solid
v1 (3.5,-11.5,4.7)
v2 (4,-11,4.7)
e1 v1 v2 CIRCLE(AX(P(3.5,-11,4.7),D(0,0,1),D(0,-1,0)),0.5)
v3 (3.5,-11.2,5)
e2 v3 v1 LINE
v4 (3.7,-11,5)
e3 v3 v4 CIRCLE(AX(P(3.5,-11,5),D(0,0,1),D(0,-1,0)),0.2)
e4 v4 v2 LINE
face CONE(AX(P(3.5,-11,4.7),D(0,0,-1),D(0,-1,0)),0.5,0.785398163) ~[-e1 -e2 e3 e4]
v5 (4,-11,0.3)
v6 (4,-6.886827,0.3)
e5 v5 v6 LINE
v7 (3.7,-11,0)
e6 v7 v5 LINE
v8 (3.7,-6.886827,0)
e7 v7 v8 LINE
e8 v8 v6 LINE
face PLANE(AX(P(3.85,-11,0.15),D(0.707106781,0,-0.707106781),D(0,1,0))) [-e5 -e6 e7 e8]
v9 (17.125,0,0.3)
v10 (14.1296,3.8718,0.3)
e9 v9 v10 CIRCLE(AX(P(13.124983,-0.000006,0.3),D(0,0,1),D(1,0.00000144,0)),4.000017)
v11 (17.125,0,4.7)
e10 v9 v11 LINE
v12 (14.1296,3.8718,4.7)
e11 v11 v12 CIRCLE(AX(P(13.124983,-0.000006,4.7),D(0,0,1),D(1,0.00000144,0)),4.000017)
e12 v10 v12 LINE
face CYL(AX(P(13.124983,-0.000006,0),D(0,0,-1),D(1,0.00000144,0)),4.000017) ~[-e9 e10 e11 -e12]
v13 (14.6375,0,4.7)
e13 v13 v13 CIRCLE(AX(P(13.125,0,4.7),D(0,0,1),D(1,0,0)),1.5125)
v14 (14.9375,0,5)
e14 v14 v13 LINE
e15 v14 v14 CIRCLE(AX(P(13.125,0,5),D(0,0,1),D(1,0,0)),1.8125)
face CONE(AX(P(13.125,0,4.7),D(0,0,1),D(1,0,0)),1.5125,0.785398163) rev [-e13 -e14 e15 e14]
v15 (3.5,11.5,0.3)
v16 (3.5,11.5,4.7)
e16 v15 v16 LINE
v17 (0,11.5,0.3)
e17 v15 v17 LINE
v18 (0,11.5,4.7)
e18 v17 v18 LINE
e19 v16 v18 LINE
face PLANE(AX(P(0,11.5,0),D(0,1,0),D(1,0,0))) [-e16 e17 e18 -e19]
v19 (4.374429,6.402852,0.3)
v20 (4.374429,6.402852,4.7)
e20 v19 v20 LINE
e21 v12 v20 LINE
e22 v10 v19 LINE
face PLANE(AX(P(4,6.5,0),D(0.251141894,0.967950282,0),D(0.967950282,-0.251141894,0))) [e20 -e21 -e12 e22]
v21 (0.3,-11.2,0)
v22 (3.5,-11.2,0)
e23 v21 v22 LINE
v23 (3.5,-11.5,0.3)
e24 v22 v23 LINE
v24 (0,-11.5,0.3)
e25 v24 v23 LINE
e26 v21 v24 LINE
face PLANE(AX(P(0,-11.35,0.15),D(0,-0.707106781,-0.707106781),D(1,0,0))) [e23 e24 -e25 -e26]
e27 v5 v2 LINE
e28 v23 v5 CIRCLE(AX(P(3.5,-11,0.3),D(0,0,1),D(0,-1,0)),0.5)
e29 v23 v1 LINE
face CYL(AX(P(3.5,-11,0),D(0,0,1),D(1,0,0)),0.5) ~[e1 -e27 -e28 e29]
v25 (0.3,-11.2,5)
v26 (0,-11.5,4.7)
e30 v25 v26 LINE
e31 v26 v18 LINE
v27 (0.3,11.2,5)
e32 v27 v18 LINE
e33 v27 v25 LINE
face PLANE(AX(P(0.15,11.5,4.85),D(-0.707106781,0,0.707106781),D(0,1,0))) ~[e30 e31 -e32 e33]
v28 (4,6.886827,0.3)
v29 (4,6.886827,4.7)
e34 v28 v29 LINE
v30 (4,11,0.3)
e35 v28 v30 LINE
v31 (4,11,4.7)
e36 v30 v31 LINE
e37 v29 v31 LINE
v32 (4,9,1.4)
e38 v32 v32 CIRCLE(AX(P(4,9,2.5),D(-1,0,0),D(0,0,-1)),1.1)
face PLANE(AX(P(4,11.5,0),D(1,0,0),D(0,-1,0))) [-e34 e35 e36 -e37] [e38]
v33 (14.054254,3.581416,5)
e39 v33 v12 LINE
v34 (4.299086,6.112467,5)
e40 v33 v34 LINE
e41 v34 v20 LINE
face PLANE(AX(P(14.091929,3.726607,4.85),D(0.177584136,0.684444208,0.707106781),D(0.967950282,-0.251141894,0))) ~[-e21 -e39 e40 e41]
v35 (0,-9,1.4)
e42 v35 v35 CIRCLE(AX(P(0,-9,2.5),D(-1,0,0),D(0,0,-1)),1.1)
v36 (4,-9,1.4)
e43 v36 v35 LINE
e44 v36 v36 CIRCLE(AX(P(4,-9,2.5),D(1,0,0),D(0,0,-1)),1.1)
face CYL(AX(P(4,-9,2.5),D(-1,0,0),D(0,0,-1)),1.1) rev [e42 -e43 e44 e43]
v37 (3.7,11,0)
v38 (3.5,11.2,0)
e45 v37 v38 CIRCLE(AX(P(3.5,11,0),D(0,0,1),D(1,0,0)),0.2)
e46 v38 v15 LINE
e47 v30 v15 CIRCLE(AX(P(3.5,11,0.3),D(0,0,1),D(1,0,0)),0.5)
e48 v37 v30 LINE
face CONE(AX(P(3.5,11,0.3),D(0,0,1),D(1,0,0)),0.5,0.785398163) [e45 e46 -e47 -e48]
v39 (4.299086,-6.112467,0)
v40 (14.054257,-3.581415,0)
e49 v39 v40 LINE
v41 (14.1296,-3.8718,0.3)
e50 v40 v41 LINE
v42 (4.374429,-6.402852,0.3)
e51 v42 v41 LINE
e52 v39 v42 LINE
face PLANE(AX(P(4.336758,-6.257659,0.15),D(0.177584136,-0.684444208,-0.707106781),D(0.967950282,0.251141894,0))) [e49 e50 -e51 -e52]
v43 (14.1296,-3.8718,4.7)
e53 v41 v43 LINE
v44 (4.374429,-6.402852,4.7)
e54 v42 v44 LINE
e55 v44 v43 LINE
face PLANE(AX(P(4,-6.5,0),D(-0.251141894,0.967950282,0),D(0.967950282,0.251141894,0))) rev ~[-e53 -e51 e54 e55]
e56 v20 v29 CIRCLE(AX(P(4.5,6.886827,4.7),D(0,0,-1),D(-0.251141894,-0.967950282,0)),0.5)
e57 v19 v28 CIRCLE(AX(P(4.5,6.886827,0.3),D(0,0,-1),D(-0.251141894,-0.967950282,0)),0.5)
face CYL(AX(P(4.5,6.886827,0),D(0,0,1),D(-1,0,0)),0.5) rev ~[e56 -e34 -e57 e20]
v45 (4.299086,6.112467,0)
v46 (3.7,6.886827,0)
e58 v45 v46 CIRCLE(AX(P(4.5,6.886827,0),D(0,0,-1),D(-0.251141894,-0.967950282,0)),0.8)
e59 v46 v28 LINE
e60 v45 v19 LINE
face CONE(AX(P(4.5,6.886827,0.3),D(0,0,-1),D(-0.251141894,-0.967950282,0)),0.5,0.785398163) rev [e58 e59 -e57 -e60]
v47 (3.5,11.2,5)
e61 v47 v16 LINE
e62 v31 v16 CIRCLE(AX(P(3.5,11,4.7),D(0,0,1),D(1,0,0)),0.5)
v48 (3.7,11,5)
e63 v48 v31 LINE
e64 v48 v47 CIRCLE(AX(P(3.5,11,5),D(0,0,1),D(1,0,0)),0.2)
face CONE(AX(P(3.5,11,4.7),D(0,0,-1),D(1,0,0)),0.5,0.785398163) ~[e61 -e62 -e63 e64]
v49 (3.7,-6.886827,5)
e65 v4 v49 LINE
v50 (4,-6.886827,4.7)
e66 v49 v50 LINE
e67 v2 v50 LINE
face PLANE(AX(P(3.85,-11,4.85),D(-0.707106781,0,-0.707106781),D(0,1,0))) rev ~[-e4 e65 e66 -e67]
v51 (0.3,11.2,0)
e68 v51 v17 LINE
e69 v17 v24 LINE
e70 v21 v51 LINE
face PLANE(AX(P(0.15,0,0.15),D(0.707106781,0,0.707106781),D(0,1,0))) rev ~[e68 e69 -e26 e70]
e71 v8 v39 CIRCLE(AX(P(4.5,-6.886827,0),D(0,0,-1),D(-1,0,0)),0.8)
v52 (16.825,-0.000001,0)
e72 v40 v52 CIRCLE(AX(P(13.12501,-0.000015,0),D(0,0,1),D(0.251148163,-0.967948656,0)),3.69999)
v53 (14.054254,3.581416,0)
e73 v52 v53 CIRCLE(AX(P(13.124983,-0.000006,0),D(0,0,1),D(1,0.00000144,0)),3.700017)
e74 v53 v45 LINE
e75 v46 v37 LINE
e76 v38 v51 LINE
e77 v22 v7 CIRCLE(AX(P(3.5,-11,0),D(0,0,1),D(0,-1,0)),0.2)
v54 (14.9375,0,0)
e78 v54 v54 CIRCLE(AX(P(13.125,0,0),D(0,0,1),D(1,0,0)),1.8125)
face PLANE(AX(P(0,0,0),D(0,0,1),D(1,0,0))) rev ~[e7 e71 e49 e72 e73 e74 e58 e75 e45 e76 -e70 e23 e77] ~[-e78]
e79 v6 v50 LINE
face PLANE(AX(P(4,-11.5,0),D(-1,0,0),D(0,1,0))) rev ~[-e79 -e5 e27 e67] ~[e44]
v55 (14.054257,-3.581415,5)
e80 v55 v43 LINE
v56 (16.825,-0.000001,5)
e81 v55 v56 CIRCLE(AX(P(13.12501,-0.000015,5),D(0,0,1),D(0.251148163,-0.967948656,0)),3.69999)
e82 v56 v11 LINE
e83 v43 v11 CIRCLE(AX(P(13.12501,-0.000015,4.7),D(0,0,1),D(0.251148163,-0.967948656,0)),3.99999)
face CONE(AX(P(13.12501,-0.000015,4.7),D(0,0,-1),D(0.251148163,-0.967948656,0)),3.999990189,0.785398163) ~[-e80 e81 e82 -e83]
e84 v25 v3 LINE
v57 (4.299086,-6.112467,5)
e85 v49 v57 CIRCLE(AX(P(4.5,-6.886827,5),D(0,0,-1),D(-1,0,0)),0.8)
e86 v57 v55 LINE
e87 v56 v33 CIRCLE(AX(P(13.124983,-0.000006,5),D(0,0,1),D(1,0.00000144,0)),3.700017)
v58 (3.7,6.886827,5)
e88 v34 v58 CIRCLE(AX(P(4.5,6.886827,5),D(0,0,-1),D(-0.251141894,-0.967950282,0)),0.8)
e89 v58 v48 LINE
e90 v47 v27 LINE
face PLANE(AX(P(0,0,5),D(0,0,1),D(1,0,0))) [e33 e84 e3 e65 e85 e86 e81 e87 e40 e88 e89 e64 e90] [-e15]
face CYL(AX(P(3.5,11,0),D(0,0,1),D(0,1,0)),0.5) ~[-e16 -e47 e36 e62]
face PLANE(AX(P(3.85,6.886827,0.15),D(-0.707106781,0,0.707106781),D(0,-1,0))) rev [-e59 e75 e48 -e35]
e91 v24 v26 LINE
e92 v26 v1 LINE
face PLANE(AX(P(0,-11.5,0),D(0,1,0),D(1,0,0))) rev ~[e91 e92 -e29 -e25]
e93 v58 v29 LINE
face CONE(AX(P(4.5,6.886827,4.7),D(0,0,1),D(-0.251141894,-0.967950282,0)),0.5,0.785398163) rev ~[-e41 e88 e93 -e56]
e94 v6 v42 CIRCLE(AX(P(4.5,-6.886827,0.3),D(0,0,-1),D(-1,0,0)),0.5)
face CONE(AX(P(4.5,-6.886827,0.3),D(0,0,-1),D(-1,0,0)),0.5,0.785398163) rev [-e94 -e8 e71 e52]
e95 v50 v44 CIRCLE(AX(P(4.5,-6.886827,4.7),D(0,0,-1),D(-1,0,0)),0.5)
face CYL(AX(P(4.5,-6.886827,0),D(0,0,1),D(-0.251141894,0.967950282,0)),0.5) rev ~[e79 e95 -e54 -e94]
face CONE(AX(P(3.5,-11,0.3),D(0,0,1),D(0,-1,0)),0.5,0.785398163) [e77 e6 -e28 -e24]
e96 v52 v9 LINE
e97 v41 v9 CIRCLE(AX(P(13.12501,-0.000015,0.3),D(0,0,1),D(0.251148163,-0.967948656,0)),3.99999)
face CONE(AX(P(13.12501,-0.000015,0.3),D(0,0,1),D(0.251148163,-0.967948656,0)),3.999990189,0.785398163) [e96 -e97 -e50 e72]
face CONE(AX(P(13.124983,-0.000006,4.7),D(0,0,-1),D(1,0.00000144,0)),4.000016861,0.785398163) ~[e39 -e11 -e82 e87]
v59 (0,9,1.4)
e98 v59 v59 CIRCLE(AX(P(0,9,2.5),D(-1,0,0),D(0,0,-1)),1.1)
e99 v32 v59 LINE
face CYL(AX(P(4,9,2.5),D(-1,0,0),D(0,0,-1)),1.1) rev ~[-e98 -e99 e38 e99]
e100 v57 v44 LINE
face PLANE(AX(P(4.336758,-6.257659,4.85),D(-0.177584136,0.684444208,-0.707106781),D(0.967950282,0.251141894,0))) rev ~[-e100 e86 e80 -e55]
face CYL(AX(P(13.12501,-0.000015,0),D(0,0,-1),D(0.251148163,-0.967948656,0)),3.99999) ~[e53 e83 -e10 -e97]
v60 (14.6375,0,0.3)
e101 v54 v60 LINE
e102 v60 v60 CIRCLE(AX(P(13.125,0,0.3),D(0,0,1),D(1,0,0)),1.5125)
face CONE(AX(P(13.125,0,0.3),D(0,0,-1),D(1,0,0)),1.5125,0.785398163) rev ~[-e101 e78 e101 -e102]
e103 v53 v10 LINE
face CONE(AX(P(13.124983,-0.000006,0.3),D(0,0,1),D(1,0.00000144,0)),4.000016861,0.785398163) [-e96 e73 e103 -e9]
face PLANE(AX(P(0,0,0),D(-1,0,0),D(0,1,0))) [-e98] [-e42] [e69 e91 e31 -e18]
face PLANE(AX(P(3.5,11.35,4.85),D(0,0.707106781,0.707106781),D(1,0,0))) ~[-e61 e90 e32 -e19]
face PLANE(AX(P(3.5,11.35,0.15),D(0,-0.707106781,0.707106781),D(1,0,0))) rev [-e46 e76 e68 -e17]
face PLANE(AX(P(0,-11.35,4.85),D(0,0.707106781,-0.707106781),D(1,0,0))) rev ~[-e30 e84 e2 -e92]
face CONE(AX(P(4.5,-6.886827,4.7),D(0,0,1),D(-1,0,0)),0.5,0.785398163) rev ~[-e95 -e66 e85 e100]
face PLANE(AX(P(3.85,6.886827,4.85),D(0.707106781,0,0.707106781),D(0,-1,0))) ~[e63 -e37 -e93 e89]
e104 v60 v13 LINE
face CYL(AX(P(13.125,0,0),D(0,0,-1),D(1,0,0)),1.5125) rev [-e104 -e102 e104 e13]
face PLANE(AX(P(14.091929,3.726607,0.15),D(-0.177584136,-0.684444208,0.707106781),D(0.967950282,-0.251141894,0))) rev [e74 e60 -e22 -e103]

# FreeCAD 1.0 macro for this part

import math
import FreeCAD as App
import Part
import Sketcher
from FreeCAD import Vector
Q = App.Units.Quantity


def edges_at(feature, points):
    """Names of the edges that pass closest to the given points."""
    edges = feature.Shape.Edges
    near = lambda p: min(range(len(edges)), key=lambda i: edges[i].distToShape(Part.Vertex(*p))[0])
    return sorted({f"Edge{near(p) + 1}" for p in points})

doc = App.newDocument("Part")
body = doc.addObject("PartDesign::Body", "Body")

# Sketch on XY plane
sketch1 = doc.addObject("Sketcher::SketchObject", "Sketch")
body.addObject(sketch1)
sketch1.AttachmentSupport = (doc.XY_Plane, [""])
sketch1.MapMode = "FlatFace"
sketch1.addGeometry(Part.LineSegment(Vector(0, 11.5, 0), Vector(0, -11.5, 0)), False)
sketch1.addGeometry(Part.LineSegment(Vector(0, -11.5, 0), Vector(4, -11.5, 0)), False)
sketch1.addGeometry(Part.LineSegment(Vector(4, -11.5, 0), Vector(4, -6.5, 0)), False)
sketch1.addGeometry(Part.LineSegment(Vector(4, -6.5, 0), Vector(14.1296, -3.8718, 0)), False)
sketch1.addGeometry(Part.ArcOfCircle(Part.Circle(Vector(13.125, 0, 0), Vector(0, 0, 1), 4), math.radians(-75.454453), math.radians(0)), False)
sketch1.addGeometry(Part.ArcOfCircle(Part.Circle(Vector(13.125, 0, 0), Vector(0, 0, 1), 4.000007), math.radians(0), math.radians(75.454453)), False)
sketch1.addGeometry(Part.LineSegment(Vector(14.1296, 3.8718, 0), Vector(4, 6.5, 0)), False)
sketch1.addGeometry(Part.LineSegment(Vector(4, 6.5, 0), Vector(4, 11.5, 0)), False)
sketch1.addGeometry(Part.LineSegment(Vector(4, 11.5, 0), Vector(0, 11.5, 0)), False)
sketch1.addGeometry(Part.Circle(Vector(13.125, 0, 0), Vector(0, 0, 1), 1.5125), False)
sketch1.addConstraint(Sketcher.Constraint("Coincident", 0, 2, 1, 1))
sketch1.addConstraint(Sketcher.Constraint("Coincident", 1, 2, 2, 1))
sketch1.addConstraint(Sketcher.Constraint("Coincident", 2, 2, 3, 1))
sketch1.addConstraint(Sketcher.Constraint("Tangent", 3, 2, 4, 1))
sketch1.addConstraint(Sketcher.Constraint("Tangent", 4, 2, 5, 1))
sketch1.addConstraint(Sketcher.Constraint("Tangent", 5, 2, 6, 1))
sketch1.addConstraint(Sketcher.Constraint("Coincident", 6, 2, 7, 1))
sketch1.addConstraint(Sketcher.Constraint("Coincident", 7, 2, 8, 1))
sketch1.addConstraint(Sketcher.Constraint("Coincident", 8, 2, 0, 1))
sketch1.addConstraint(Sketcher.Constraint("Vertical", 0))
sketch1.addConstraint(Sketcher.Constraint("Horizontal", 1))
sketch1.addConstraint(Sketcher.Constraint("Vertical", 2))
sketch1.addConstraint(Sketcher.Constraint("Vertical", 7))
sketch1.addConstraint(Sketcher.Constraint("Horizontal", 8))
sketch1.addConstraint(Sketcher.Constraint("Coincident", 9, 3, 4, 3))
sketch1.addConstraint(Sketcher.Constraint("Equal", 4, 5))
sketch1.addConstraint(Sketcher.Constraint("Symmetric", 0, 2, 8, 2, -1, 1))
sketch1.addConstraint(Sketcher.Constraint("Symmetric", 3, 2, 5, 2, -1))
sketch1.addConstraint(Sketcher.Constraint("PointOnObject", 4, 2, -1))
sketch1.addConstraint(Sketcher.Constraint("Vertical", 2, 2, 6, 2))
sketch1.addConstraint(Sketcher.Constraint("Radius", 4, Q("4 mm")))
sketch1.addConstraint(Sketcher.Constraint("DistanceX", 1, 1, 1, 2, Q("4 mm")))
sketch1.addConstraint(Sketcher.Constraint("DistanceY", 2, 1, 2, 2, Q("5 mm")))
sketch1.addConstraint(Sketcher.Constraint("Diameter", 9, Q("3.025 mm")))
sketch1.addConstraint(Sketcher.Constraint("DistanceY", 0, 2, -1, 1, Q("11.5 mm")))
sketch1.addConstraint(Sketcher.Constraint("DistanceX", -1, 1, 4, 3, Q("13.125 mm")))
pad1 = doc.addObject("PartDesign::Pad", "Pad")
body.addObject(pad1)
pad1.Profile = sketch1
pad1.Length = 5
doc.recompute()

fillet = doc.addObject("PartDesign::Fillet", "Fillet")
body.addObject(fillet)
fillet.Base = (pad1, edges_at(pad1, [
    (4, 6.5, 2.5),
    (4, -6.5, 2.5),
    (4, -11.5, 2.5),
    (4, 11.5, 2.5),
]))
fillet.Radius = 0.5
doc.recompute()

chamfer = doc.addObject("PartDesign::Chamfer", "Chamfer")
body.addObject(chamfer)
chamfer.Base = (fillet, edges_at(fillet, [
    (16.289, 2.448, 0),
    (9.252, -5.137, 0),
    (4.104, -6.581, 0),
    (4, -8.943, 0),
    (3.854, -11.354, 0),
    (1.75, -11.5, 0),
    (9.252, 5.137, 0),
    (4.104, 6.581, 0),
    (4, 8.943, 0),
    (3.854, 11.354, 0),
    (1.75, 11.5, 0),
    (11.613, 0, 0),
    (0, 5.75, 0),
    (4, -8.943, 5),
    (4.104, -6.581, 5),
    (9.252, -5.137, 5),
    (16.289, 2.448, 5),
    (9.252, 5.137, 5),
    (4.104, 6.581, 5),
    (4, 8.943, 5),
    (3.854, 11.354, 5),
    (1.75, 11.5, 5),
    (3.854, -11.354, 5),
    (1.75, -11.5, 5),
    (11.613, 0, 5),
    (0, -5.75, 5),
]))
chamfer.Size = 0.3

# Sketch on YZ plane
sketch2 = doc.addObject("Sketcher::SketchObject", "Sketch001")
body.addObject(sketch2)
sketch2.AttachmentSupport = (doc.YZ_Plane, [""])
sketch2.MapMode = "FlatFace"
sketch2.AttachmentOffset = App.Placement(Vector(0, 0, 4), App.Rotation())
sketch2.addGeometry(Part.Circle(Vector(9, 2.5, 0), Vector(0, 0, 1), 1.1), False)
sketch2.addConstraint(Sketcher.Constraint("Diameter", 0, Q("2.2 mm")))
sketch2.addConstraint(Sketcher.Constraint("DistanceX", -1, 1, 0, 3, Q("9 mm")))
sketch2.addConstraint(Sketcher.Constraint("DistanceY", -1, 1, 0, 3, Q("2.5 mm")))
doc.recompute()
hole = doc.addObject("PartDesign::Hole", "Hole")
body.addObject(hole)
hole.Profile = sketch2
hole.ThreadType = "None"
hole.Diameter = 2.2
hole.DepthType = "ThroughAll"
doc.recompute()

mirrored = doc.addObject("PartDesign::Mirrored", "Mirrored")
body.addObject(mirrored)
mirrored.Originals = [hole]
mirrored.MirrorPlane = (doc.XZ_Plane, [""])
body.Tip = mirrored

doc.recompute()
